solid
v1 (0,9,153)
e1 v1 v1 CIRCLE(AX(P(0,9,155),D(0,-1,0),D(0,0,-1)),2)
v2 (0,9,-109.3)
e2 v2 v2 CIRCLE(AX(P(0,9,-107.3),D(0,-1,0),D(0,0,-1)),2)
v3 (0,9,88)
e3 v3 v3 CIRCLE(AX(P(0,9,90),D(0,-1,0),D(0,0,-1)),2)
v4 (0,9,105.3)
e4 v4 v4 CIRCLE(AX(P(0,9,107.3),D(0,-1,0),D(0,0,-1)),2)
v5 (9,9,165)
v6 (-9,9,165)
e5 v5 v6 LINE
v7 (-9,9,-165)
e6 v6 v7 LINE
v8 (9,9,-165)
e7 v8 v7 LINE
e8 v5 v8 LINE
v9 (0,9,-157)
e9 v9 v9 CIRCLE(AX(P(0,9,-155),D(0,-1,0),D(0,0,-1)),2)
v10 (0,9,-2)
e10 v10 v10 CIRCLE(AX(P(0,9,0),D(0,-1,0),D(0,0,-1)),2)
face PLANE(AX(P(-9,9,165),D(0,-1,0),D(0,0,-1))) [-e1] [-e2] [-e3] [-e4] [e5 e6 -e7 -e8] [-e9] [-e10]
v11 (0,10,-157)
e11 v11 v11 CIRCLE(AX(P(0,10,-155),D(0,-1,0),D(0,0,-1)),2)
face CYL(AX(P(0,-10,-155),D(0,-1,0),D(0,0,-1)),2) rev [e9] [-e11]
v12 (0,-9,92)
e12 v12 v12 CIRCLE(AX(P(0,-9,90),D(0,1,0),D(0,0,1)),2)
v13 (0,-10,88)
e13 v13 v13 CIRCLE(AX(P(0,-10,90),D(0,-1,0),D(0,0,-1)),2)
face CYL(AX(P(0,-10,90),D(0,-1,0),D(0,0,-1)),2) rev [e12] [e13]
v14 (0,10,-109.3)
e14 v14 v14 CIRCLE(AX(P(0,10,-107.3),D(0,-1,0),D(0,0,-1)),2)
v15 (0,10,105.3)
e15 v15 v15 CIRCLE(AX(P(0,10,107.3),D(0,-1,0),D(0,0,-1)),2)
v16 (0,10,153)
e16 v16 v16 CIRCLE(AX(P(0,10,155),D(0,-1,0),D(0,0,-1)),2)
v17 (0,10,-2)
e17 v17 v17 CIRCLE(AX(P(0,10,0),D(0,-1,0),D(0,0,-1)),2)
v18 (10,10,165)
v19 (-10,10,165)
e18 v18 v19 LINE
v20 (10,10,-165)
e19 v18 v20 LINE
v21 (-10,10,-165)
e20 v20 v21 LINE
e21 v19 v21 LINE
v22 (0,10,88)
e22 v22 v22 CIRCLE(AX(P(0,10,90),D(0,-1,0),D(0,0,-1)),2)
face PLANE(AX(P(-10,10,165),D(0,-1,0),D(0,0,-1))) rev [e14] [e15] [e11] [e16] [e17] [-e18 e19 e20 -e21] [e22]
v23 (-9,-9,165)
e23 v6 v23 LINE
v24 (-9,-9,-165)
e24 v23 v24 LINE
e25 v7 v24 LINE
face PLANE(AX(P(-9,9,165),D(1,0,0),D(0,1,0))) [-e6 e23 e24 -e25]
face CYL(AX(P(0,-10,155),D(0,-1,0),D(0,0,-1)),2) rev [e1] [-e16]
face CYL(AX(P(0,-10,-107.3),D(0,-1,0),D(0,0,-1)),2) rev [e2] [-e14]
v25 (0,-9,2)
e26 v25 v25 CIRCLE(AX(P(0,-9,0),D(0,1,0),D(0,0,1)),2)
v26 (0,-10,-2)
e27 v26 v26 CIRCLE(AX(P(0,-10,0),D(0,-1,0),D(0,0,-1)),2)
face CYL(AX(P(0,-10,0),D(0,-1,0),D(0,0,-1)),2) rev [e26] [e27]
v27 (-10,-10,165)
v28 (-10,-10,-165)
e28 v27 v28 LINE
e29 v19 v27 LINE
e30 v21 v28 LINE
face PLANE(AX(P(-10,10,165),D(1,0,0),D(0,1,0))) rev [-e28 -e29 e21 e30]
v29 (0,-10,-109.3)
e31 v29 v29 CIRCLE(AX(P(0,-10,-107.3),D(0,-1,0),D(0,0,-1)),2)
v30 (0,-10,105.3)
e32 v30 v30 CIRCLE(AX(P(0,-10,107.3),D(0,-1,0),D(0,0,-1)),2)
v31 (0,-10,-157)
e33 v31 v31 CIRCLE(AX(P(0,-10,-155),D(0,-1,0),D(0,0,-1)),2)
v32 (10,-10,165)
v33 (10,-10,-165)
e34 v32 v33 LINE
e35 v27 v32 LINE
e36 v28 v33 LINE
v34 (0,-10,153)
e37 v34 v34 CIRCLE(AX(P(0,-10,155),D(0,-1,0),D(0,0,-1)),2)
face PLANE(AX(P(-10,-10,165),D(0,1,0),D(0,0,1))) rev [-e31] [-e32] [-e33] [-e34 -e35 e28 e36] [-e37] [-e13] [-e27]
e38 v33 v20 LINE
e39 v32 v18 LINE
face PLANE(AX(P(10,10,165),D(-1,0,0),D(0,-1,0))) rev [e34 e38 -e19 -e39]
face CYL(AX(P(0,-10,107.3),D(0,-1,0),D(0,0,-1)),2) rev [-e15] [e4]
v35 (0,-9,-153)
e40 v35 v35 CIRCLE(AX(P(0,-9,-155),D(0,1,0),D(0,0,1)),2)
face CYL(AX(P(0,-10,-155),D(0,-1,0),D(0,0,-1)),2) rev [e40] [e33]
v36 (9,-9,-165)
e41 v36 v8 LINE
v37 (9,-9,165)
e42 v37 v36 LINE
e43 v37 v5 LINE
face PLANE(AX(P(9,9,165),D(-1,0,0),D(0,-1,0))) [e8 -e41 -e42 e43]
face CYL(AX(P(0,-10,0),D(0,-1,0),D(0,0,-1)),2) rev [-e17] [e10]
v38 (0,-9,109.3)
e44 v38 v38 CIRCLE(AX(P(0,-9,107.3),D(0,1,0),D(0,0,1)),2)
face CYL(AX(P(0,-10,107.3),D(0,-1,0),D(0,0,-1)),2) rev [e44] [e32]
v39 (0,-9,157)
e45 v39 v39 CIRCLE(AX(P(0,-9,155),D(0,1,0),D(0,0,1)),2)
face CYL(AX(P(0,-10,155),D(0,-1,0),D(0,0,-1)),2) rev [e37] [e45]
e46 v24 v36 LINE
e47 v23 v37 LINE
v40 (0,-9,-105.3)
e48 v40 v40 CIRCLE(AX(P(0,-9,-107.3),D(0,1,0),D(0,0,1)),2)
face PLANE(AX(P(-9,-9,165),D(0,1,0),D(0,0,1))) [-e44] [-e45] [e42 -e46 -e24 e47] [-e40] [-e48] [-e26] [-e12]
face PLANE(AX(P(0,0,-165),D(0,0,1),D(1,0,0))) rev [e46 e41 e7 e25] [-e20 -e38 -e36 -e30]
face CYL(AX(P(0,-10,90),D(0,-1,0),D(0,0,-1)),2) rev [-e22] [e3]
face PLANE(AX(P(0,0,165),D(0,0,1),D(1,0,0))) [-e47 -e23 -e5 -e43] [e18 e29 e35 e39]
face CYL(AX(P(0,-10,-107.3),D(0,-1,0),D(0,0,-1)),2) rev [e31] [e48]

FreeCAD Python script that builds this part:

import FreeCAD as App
import Part
import Sketcher
Q = App.Units.Quantity


def add_polygon(sketch, points):
    """Adds a closed chain of lines whose ends are joined by coincident constraints."""
    first, n = sketch.GeometryCount, len(points)
    for a, b in zip(points, points[1:] + points[:1]):
        sketch.addGeometry(Part.LineSegment(App.Vector(*a, 0), App.Vector(*b, 0)), False)
    for i in range(n):
        sketch.addConstraint(Sketcher.Constraint("Coincident", first + i, 2, first + (i + 1) % n, 1))

doc = App.newDocument("Part")
body = doc.addObject("PartDesign::Body", "Body")

# Sketch on XY plane
sketch1 = doc.addObject("Sketcher::SketchObject", "Sketch")
body.addObject(sketch1)
sketch1.AttachmentSupport = (doc.XY_Plane, [""])
sketch1.MapMode = "FlatFace"
add_polygon(sketch1, [(-10, 10), (-10, -10), (10, -10), (10, 10)])  # lines 0-3
add_polygon(sketch1, [(9, -9), (-9, -9), (-9, 9), (9, 9)])  # lines 4-7
sketch1.addConstraint(Sketcher.Constraint("Vertical", 0))
sketch1.addConstraint(Sketcher.Constraint("Horizontal", 1))
sketch1.addConstraint(Sketcher.Constraint("Vertical", 2))
sketch1.addConstraint(Sketcher.Constraint("Horizontal", 3))
sketch1.addConstraint(Sketcher.Constraint("Horizontal", 4))
sketch1.addConstraint(Sketcher.Constraint("Vertical", 5))
sketch1.addConstraint(Sketcher.Constraint("Horizontal", 6))
sketch1.addConstraint(Sketcher.Constraint("Vertical", 7))
sketch1.addConstraint(Sketcher.Constraint("Symmetric", 0, 2, 2, 2, -1, 1))
sketch1.addConstraint(Sketcher.Constraint("Symmetric", 4, 2, 6, 2, -1, 1))
sketch1.addConstraint(Sketcher.Constraint("Equal", 3, 0))
sketch1.addConstraint(Sketcher.Constraint("Equal", 6, 5))
sketch1.addConstraint(Sketcher.Constraint("DistanceX", 1, 1, 1, 2, Q("20 mm")))
sketch1.addConstraint(Sketcher.Constraint("DistanceX", 4, 2, 4, 1, Q("18 mm")))
pad1 = doc.addObject("PartDesign::Pad", "Pad")
body.addObject(pad1)
pad1.Profile = sketch1
pad1.Length = 330
pad1.Midplane = True

# Sketch on XZ plane
sketch2 = doc.addObject("Sketcher::SketchObject", "Sketch001")
body.addObject(sketch2)
sketch2.AttachmentSupport = (doc.XZ_Plane, [""])
sketch2.MapMode = "FlatFace"
sketch2.AttachmentOffset = App.Placement(App.Vector(0, 0, 10), App.Rotation())
sketch2.addGeometry(Part.Circle(App.Vector(0, 107.3, 0), App.Vector(0, 0, 1), 2), False)
sketch2.addConstraint(Sketcher.Constraint("PointOnObject", 0, 3, -2))
sketch2.addConstraint(Sketcher.Constraint("Diameter", 0, Q("4 mm")))
sketch2.addConstraint(Sketcher.Constraint("DistanceY", -1, 1, 0, 3, Q("107.3 mm")))
doc.recompute()
hole = doc.addObject("PartDesign::Hole", "Hole")
body.addObject(hole)
hole.Profile = sketch2
hole.ThreadType = "None"
hole.Diameter = 4
hole.DepthType = "ThroughAll"
doc.recompute()

mirrored = doc.addObject("PartDesign::Mirrored", "Mirrored")
body.addObject(mirrored)
mirrored.Originals = [hole]
mirrored.MirrorPlane = (doc.XY_Plane, [""])
body.Tip = mirrored

# Sketch on XZ plane
sketch3 = doc.addObject("Sketcher::SketchObject", "Sketch002")
body.addObject(sketch3)
sketch3.AttachmentSupport = (doc.XZ_Plane, [""])
sketch3.MapMode = "FlatFace"
sketch3.AttachmentOffset = App.Placement(App.Vector(0, 0, 10), App.Rotation())
sketch3.addGeometry(Part.Circle(App.Vector(0, 155, 0), App.Vector(0, 0, 1), 2), False)
sketch3.addConstraint(Sketcher.Constraint("PointOnObject", 0, 3, -2))
sketch3.addConstraint(Sketcher.Constraint("Diameter", 0, Q("4 mm")))
sketch3.addConstraint(Sketcher.Constraint("DistanceY", -1, 1, 0, 3, Q("155 mm")))
doc.recompute()
hole2 = doc.addObject("PartDesign::Hole", "Hole001")
body.addObject(hole2)
hole2.Profile = sketch3
hole2.ThreadType = "None"
hole2.Diameter = 4
hole2.DepthType = "ThroughAll"
doc.recompute()

mirrored2 = doc.addObject("PartDesign::Mirrored", "Mirrored001")
body.addObject(mirrored2)
mirrored2.Originals = [hole2]
mirrored2.MirrorPlane = (doc.XY_Plane, [""])
body.Tip = mirrored2

# Sketch on XZ plane
sketch4 = doc.addObject("Sketcher::SketchObject", "Sketch003")
body.addObject(sketch4)
sketch4.AttachmentSupport = (doc.XZ_Plane, [""])
sketch4.MapMode = "FlatFace"
sketch4.AttachmentOffset = App.Placement(App.Vector(0, 0, 10), App.Rotation())
sketch4.addGeometry(Part.Circle(App.Vector(0, 90, 0), App.Vector(0, 0, 1), 2), False)
sketch4.addGeometry(Part.Circle(App.Vector(0, 0, 0), App.Vector(0, 0, 1), 2), False)
sketch4.addConstraint(Sketcher.Constraint("Coincident", 1, 3, -1, 1))
sketch4.addConstraint(Sketcher.Constraint("Equal", 0, 1))
sketch4.addConstraint(Sketcher.Constraint("PointOnObject", 0, 3, -2))
sketch4.addConstraint(Sketcher.Constraint("Diameter", 0, Q("4 mm")))
sketch4.addConstraint(Sketcher.Constraint("DistanceY", -1, 1, 0, 3, Q("90 mm")))
doc.recompute()
hole3 = doc.addObject("PartDesign::Hole", "Hole002")
body.addObject(hole3)
hole3.Profile = sketch4
hole3.ThreadType = "None"
hole3.Diameter = 4
hole3.DepthType = "ThroughAll"

doc.recompute()
